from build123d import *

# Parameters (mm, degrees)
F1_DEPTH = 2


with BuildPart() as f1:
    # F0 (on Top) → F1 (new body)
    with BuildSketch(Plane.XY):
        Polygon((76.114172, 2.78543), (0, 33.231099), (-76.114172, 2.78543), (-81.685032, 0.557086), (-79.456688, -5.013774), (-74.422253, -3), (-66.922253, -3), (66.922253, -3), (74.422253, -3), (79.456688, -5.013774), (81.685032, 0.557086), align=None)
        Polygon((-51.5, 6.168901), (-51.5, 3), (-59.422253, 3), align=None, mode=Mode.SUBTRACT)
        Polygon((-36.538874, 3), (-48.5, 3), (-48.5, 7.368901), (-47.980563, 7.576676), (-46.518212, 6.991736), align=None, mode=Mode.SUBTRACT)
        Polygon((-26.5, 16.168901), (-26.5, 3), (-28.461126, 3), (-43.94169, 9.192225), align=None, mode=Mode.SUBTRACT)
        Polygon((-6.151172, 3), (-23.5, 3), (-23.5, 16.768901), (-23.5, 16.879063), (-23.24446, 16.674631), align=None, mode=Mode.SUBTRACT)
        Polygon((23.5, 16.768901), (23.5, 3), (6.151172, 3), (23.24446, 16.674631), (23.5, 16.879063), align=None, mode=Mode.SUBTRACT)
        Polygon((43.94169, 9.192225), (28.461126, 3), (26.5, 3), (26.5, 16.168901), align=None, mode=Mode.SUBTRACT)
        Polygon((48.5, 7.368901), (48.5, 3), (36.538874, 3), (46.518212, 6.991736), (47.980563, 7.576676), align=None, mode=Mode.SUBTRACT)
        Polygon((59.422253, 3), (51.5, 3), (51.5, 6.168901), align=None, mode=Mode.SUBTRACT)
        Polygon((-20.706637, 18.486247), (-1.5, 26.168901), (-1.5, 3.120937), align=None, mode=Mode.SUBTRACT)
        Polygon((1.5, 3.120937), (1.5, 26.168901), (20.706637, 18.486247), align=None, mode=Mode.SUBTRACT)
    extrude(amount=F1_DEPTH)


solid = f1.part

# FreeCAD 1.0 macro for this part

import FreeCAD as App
import Part
import Sketcher
Q = App.Units.Quantity

doc = App.newDocument("Part")
body = doc.addObject("PartDesign::Body", "Body")

# Sketch on XY plane
sketch1 = body.newObject("Sketcher::SketchObject", "Sketch")
sketch1.AttachmentSupport = (doc.getObject("XY_Plane"), [""])
sketch1.MapMode = "FlatFace"
sketch1.addGeometry(Part.LineSegment(App.Vector(76.11, 2.79, 0), App.Vector(0, 33.23, 0)), False)
sketch1.addGeometry(Part.LineSegment(App.Vector(0, 33.23, 0), App.Vector(-76.11, 2.79, 0)), False)
sketch1.addGeometry(Part.LineSegment(App.Vector(-76.11, 2.79, 0), App.Vector(-81.69, 0.56, 0)), False)
sketch1.addGeometry(Part.LineSegment(App.Vector(-81.69, 0.56, 0), App.Vector(-79.46, -5.01, 0)), False)
sketch1.addGeometry(Part.LineSegment(App.Vector(-79.46, -5.01, 0), App.Vector(-74.42, -3, 0)), False)
sketch1.addGeometry(Part.LineSegment(App.Vector(-74.42, -3, 0), App.Vector(74.42, -3, 0)), False)
sketch1.addGeometry(Part.LineSegment(App.Vector(74.42, -3, 0), App.Vector(79.46, -5.01, 0)), False)
sketch1.addGeometry(Part.LineSegment(App.Vector(79.46, -5.01, 0), App.Vector(81.69, 0.56, 0)), False)
sketch1.addGeometry(Part.LineSegment(App.Vector(81.69, 0.56, 0), App.Vector(76.11, 2.79, 0)), False)
sketch1.addGeometry(Part.LineSegment(App.Vector(-59.42, 3, 0), App.Vector(-51.5, 6.17, 0)), False)
sketch1.addGeometry(Part.LineSegment(App.Vector(-51.5, 6.17, 0), App.Vector(-51.5, 3, 0)), False)
sketch1.addGeometry(Part.LineSegment(App.Vector(-51.5, 3, 0), App.Vector(-59.42, 3, 0)), False)
sketch1.addGeometry(Part.LineSegment(App.Vector(-46.52, 6.99, 0), App.Vector(-36.54, 3, 0)), False)
sketch1.addGeometry(Part.LineSegment(App.Vector(-36.54, 3, 0), App.Vector(-48.5, 3, 0)), False)
sketch1.addGeometry(Part.LineSegment(App.Vector(-48.5, 3, 0), App.Vector(-48.5, 7.37, 0)), False)
sketch1.addGeometry(Part.LineSegment(App.Vector(-48.5, 7.37, 0), App.Vector(-47.98, 7.58, 0)), False)
sketch1.addGeometry(Part.LineSegment(App.Vector(-47.98, 7.58, 0), App.Vector(-46.52, 6.99, 0)), False)
sketch1.addGeometry(Part.LineSegment(App.Vector(-43.94, 9.19, 0), App.Vector(-26.5, 16.17, 0)), False)
sketch1.addGeometry(Part.LineSegment(App.Vector(-26.5, 16.17, 0), App.Vector(-26.5, 3, 0)), False)
sketch1.addGeometry(Part.LineSegment(App.Vector(-26.5, 3, 0), App.Vector(-28.46, 3, 0)), False)
sketch1.addGeometry(Part.LineSegment(App.Vector(-28.46, 3, 0), App.Vector(-43.94, 9.19, 0)), False)
sketch1.addGeometry(Part.LineSegment(App.Vector(-23.24, 16.67, 0), App.Vector(-6.15, 3, 0)), False)
sketch1.addGeometry(Part.LineSegment(App.Vector(-6.15, 3, 0), App.Vector(-23.5, 3, 0)), False)
sketch1.addGeometry(Part.LineSegment(App.Vector(-23.5, 3, 0), App.Vector(-23.5, 16.88, 0)), False)
sketch1.addGeometry(Part.LineSegment(App.Vector(-23.5, 16.88, 0), App.Vector(-23.24, 16.67, 0)), False)
sketch1.addGeometry(Part.LineSegment(App.Vector(47.98, 7.58, 0), App.Vector(48.5, 7.37, 0)), False)
sketch1.addGeometry(Part.LineSegment(App.Vector(48.5, 7.37, 0), App.Vector(48.5, 3, 0)), False)
sketch1.addGeometry(Part.LineSegment(App.Vector(48.5, 3, 0), App.Vector(36.54, 3, 0)), False)
sketch1.addGeometry(Part.LineSegment(App.Vector(36.54, 3, 0), App.Vector(46.52, 6.99, 0)), False)
sketch1.addGeometry(Part.LineSegment(App.Vector(46.52, 6.99, 0), App.Vector(47.98, 7.58, 0)), False)
sketch1.addGeometry(Part.LineSegment(App.Vector(51.5, 6.17, 0), App.Vector(59.42, 3, 0)), False)
sketch1.addGeometry(Part.LineSegment(App.Vector(59.42, 3, 0), App.Vector(51.5, 3, 0)), False)
sketch1.addGeometry(Part.LineSegment(App.Vector(51.5, 3, 0), App.Vector(51.5, 6.17, 0)), False)
sketch1.addGeometry(Part.LineSegment(App.Vector(23.5, 16.88, 0), App.Vector(23.5, 3, 0)), False)
sketch1.addGeometry(Part.LineSegment(App.Vector(23.5, 3, 0), App.Vector(6.15, 3, 0)), False)
sketch1.addGeometry(Part.LineSegment(App.Vector(6.15, 3, 0), App.Vector(23.24, 16.67, 0)), False)
sketch1.addGeometry(Part.LineSegment(App.Vector(23.24, 16.67, 0), App.Vector(23.5, 16.88, 0)), False)
sketch1.addGeometry(Part.LineSegment(App.Vector(26.5, 16.17, 0), App.Vector(43.94, 9.19, 0)), False)
sketch1.addGeometry(Part.LineSegment(App.Vector(43.94, 9.19, 0), App.Vector(28.46, 3, 0)), False)
sketch1.addGeometry(Part.LineSegment(App.Vector(28.46, 3, 0), App.Vector(26.5, 3, 0)), False)
sketch1.addGeometry(Part.LineSegment(App.Vector(26.5, 3, 0), App.Vector(26.5, 16.17, 0)), False)
sketch1.addGeometry(Part.LineSegment(App.Vector(-1.5, 3.12, 0), App.Vector(-20.71, 18.49, 0)), False)
sketch1.addGeometry(Part.LineSegment(App.Vector(-20.71, 18.49, 0), App.Vector(-1.5, 26.17, 0)), False)
sketch1.addGeometry(Part.LineSegment(App.Vector(-1.5, 26.17, 0), App.Vector(-1.5, 3.12, 0)), False)
sketch1.addGeometry(Part.LineSegment(App.Vector(20.71, 18.49, 0), App.Vector(1.5, 3.12, 0)), False)
sketch1.addGeometry(Part.LineSegment(App.Vector(1.5, 3.12, 0), App.Vector(1.5, 26.17, 0)), False)
sketch1.addGeometry(Part.LineSegment(App.Vector(1.5, 26.17, 0), App.Vector(20.71, 18.49, 0)), False)
sketch1.addConstraint(Sketcher.Constraint("Coincident", 0, 2, 1, 1))
sketch1.addConstraint(Sketcher.Constraint("Coincident", 1, 2, 2, 1))
sketch1.addConstraint(Sketcher.Constraint("Coincident", 2, 2, 3, 1))
sketch1.addConstraint(Sketcher.Constraint("Coincident", 3, 2, 4, 1))
sketch1.addConstraint(Sketcher.Constraint("Coincident", 4, 2, 5, 1))
sketch1.addConstraint(Sketcher.Constraint("Coincident", 5, 2, 6, 1))
sketch1.addConstraint(Sketcher.Constraint("Coincident", 6, 2, 7, 1))
sketch1.addConstraint(Sketcher.Constraint("Coincident", 7, 2, 8, 1))
sketch1.addConstraint(Sketcher.Constraint("Coincident", 8, 2, 0, 1))
sketch1.addConstraint(Sketcher.Constraint("Coincident", 9, 2, 10, 1))
sketch1.addConstraint(Sketcher.Constraint("Coincident", 10, 2, 11, 1))
sketch1.addConstraint(Sketcher.Constraint("Coincident", 11, 2, 9, 1))
sketch1.addConstraint(Sketcher.Constraint("Coincident", 12, 2, 13, 1))
sketch1.addConstraint(Sketcher.Constraint("Coincident", 13, 2, 14, 1))
sketch1.addConstraint(Sketcher.Constraint("Coincident", 14, 2, 15, 1))
sketch1.addConstraint(Sketcher.Constraint("Coincident", 15, 2, 16, 1))
sketch1.addConstraint(Sketcher.Constraint("Coincident", 16, 2, 12, 1))
sketch1.addConstraint(Sketcher.Constraint("Coincident", 17, 2, 18, 1))
sketch1.addConstraint(Sketcher.Constraint("Coincident", 18, 2, 19, 1))
sketch1.addConstraint(Sketcher.Constraint("Coincident", 19, 2, 20, 1))
sketch1.addConstraint(Sketcher.Constraint("Coincident", 20, 2, 17, 1))
sketch1.addConstraint(Sketcher.Constraint("Coincident", 21, 2, 22, 1))
sketch1.addConstraint(Sketcher.Constraint("Coincident", 22, 2, 23, 1))
sketch1.addConstraint(Sketcher.Constraint("Coincident", 23, 2, 24, 1))
sketch1.addConstraint(Sketcher.Constraint("Coincident", 24, 2, 21, 1))
sketch1.addConstraint(Sketcher.Constraint("Coincident", 25, 2, 26, 1))
sketch1.addConstraint(Sketcher.Constraint("Coincident", 26, 2, 27, 1))
sketch1.addConstraint(Sketcher.Constraint("Coincident", 27, 2, 28, 1))
sketch1.addConstraint(Sketcher.Constraint("Coincident", 28, 2, 29, 1))
sketch1.addConstraint(Sketcher.Constraint("Coincident", 29, 2, 25, 1))
sketch1.addConstraint(Sketcher.Constraint("Coincident", 30, 2, 31, 1))
sketch1.addConstraint(Sketcher.Constraint("Coincident", 31, 2, 32, 1))
sketch1.addConstraint(Sketcher.Constraint("Coincident", 32, 2, 30, 1))
sketch1.addConstraint(Sketcher.Constraint("Coincident", 33, 2, 34, 1))
sketch1.addConstraint(Sketcher.Constraint("Coincident", 34, 2, 35, 1))
sketch1.addConstraint(Sketcher.Constraint("Coincident", 35, 2, 36, 1))
sketch1.addConstraint(Sketcher.Constraint("Coincident", 36, 2, 33, 1))
sketch1.addConstraint(Sketcher.Constraint("Coincident", 37, 2, 38, 1))
sketch1.addConstraint(Sketcher.Constraint("Coincident", 38, 2, 39, 1))
sketch1.addConstraint(Sketcher.Constraint("Coincident", 39, 2, 40, 1))
sketch1.addConstraint(Sketcher.Constraint("Coincident", 40, 2, 37, 1))
sketch1.addConstraint(Sketcher.Constraint("Coincident", 41, 2, 42, 1))
sketch1.addConstraint(Sketcher.Constraint("Coincident", 42, 2, 43, 1))
sketch1.addConstraint(Sketcher.Constraint("Coincident", 43, 2, 41, 1))
sketch1.addConstraint(Sketcher.Constraint("Coincident", 44, 2, 45, 1))
sketch1.addConstraint(Sketcher.Constraint("Coincident", 45, 2, 46, 1))
sketch1.addConstraint(Sketcher.Constraint("Coincident", 46, 2, 44, 1))
sketch1.addConstraint(Sketcher.Constraint("Horizontal", 5))
sketch1.addConstraint(Sketcher.Constraint("Vertical", 10))
sketch1.addConstraint(Sketcher.Constraint("Horizontal", 11))
sketch1.addConstraint(Sketcher.Constraint("Horizontal", 13))
sketch1.addConstraint(Sketcher.Constraint("Vertical", 14))
sketch1.addConstraint(Sketcher.Constraint("Vertical", 18))
sketch1.addConstraint(Sketcher.Constraint("Horizontal", 19))
sketch1.addConstraint(Sketcher.Constraint("Horizontal", 22))
sketch1.addConstraint(Sketcher.Constraint("Vertical", 23))
sketch1.addConstraint(Sketcher.Constraint("Vertical", 26))
sketch1.addConstraint(Sketcher.Constraint("Horizontal", 27))
sketch1.addConstraint(Sketcher.Constraint("Horizontal", 31))
sketch1.addConstraint(Sketcher.Constraint("Vertical", 32))
sketch1.addConstraint(Sketcher.Constraint("Vertical", 33))
sketch1.addConstraint(Sketcher.Constraint("Horizontal", 34))
sketch1.addConstraint(Sketcher.Constraint("Horizontal", 39))
sketch1.addConstraint(Sketcher.Constraint("Vertical", 40))
sketch1.addConstraint(Sketcher.Constraint("Vertical", 43))
sketch1.addConstraint(Sketcher.Constraint("Vertical", 45))
sketch1.addConstraint(Sketcher.Constraint("Symmetric", 3, 2, 6, 2, -2))
sketch1.addConstraint(Sketcher.Constraint("Symmetric", 2, 2, 7, 2, -2))
sketch1.addConstraint(Sketcher.Constraint("Symmetric", 1, 2, 8, 2, -2))
sketch1.addConstraint(Sketcher.Constraint("Symmetric", 14, 2, 25, 2, -2))
sketch1.addConstraint(Sketcher.Constraint("Symmetric", 12, 2, 27, 2, -2))
sketch1.addConstraint(Sketcher.Constraint("Symmetric", 16, 2, 28, 2, -2))
sketch1.addConstraint(Sketcher.Constraint("Symmetric", 15, 2, 29, 2, -2))
sketch1.addConstraint(Sketcher.Constraint("Symmetric", 11, 2, 30, 2, -2))
sketch1.addConstraint(Sketcher.Constraint("Symmetric", 9, 2, 32, 2, -2))
sketch1.addConstraint(Sketcher.Constraint("Symmetric", 22, 2, 33, 2, -2))
sketch1.addConstraint(Sketcher.Constraint("Symmetric", 24, 2, 35, 2, -2))
sketch1.addConstraint(Sketcher.Constraint("Symmetric", 20, 2, 37, 2, -2))
sketch1.addConstraint(Sketcher.Constraint("Symmetric", 19, 2, 38, 2, -2))
sketch1.addConstraint(Sketcher.Constraint("Symmetric", 17, 2, 40, 2, -2))
sketch1.addConstraint(Sketcher.Constraint("Symmetric", 43, 2, 44, 2, -2))
sketch1.addConstraint(Sketcher.Constraint("Symmetric", 41, 2, 46, 2, -2))
sketch1.addConstraint(Sketcher.Constraint("PointOnObject", 0, 2, -2))
sketch1.addConstraint(Sketcher.Constraint("Parallel", 1, 2))
sketch1.addConstraint(Sketcher.Constraint("Perpendicular", 2, 3))
sketch1.addConstraint(Sketcher.Constraint("Perpendicular", 3, 4))
sketch1.addConstraint(Sketcher.Constraint("Parallel", 0, 6))
sketch1.addConstraint(Sketcher.Constraint("Parallel", 4, 9))
sketch1.addConstraint(Sketcher.Constraint("Parallel", 8, 12))
sketch1.addConstraint(Sketcher.Constraint("Parallel", 9, 15))
sketch1.addConstraint(Sketcher.Constraint("Parallel", 12, 16))
sketch1.addConstraint(Sketcher.Constraint("Parallel", 15, 17))
sketch1.addConstraint(Sketcher.Constraint("Parallel", 16, 20))
sketch1.addConstraint(Sketcher.Constraint("Parallel", 21, 24))
sketch1.addConstraint(Sketcher.Constraint("Parallel", 35, 36))
sketch1.addConstraint(Sketcher.Constraint("Parallel", 24, 41))
sketch1.addConstraint(Sketcher.Constraint("Parallel", 38, 42))
sketch1.addConstraint(Sketcher.Constraint("Parallel", 36, 44))
sketch1.addConstraint(Sketcher.Constraint("Parallel", 37, 46))
sketch1.addConstraint(Sketcher.Constraint("Horizontal", 11, 2, 12, 2))
sketch1.addConstraint(Sketcher.Constraint("Horizontal", 13, 2, 18, 2))
sketch1.addConstraint(Sketcher.Constraint("Horizontal", 19, 2, 21, 2))
sketch1.addConstraint(Sketcher.Constraint("Equal", 2, 3))
sketch1.addConstraint(Sketcher.Constraint("Distance", 2, Q("6 mm")))
sketch1.addConstraint(Sketcher.Constraint("DistanceY", 4, 2, -1, 1, Q("3 mm")))
sketch1.addConstraint(Sketcher.Constraint("DistanceY", -1, 1, 10, 2, Q("3 mm")))
sketch1.addConstraint(Sketcher.Constraint("DistanceX", 4, 2, 11, 2, Q("15 mm")))
sketch1.addConstraint(Sketcher.Constraint("DistanceX", 10, 2, 13, 2, Q("3 mm")))
sketch1.addConstraint(Sketcher.Constraint("DistanceX", 14, 2, 17, 2, Q("22 mm")))
sketch1.addConstraint(Sketcher.Constraint("DistanceX", 18, 2, 22, 2, Q("3 mm")))
sketch1.addConstraint(Sketcher.Constraint("DistanceX", 23, 2, 42, 2, Q("22 mm")))
sketch1.addConstraint(Sketcher.Constraint("DistanceX", 43, 2, 44, 2, Q("3 mm")))
sketch1.addConstraint(Sketcher.Constraint("DistanceY", 9, 2, 14, 2, Q("1.2 mm")))
sketch1.addConstraint(Sketcher.Constraint("DistanceY", 14, 2, 17, 2, Q("8.8 mm")))
sketch1.addConstraint(Sketcher.Constraint("Distance", 16, Q("1.575 mm")))
sketch1.addConstraint(Sketcher.Constraint("DistanceY", 10, 2, 10, 1, Q("3.168901 mm")))
sketch1.addConstraint(Sketcher.Constraint("DistanceX", 22, 2, 22, 1, Q("17.348828 mm")))
sketch1.addConstraint(Sketcher.Constraint("DistanceY", -1, 1, 0, 2, Q("33.231099 mm")))
sketch1.addConstraint(Sketcher.Constraint("DistanceY", -1, 1, 42, 2, Q("26.168901 mm")))
sketch1.addConstraint(Sketcher.Constraint("Distance", 15, Q("0.559451 mm")))
sketch1.addConstraint(Sketcher.Constraint("Distance", 21, Q("21.89009 mm")))
sketch1.addConstraint(Sketcher.Constraint("Distance", 24, Q("0.327251 mm")))
sketch1.addConstraint(Sketcher.Constraint("Distance", 42, Q("20.686181 mm")))
sketch1.addConstraint(Sketcher.Constraint("DistanceX", 19, 2, 19, 1, Q("1.961126 mm")))
sketch1.addConstraint(Sketcher.Constraint("DistanceX", 1, 2, -1, 1, Q("76.114172 mm")))
pad1 = body.newObject("PartDesign::Pad", "Pad")
pad1.Profile = sketch1
pad1.Length = 2

doc.recompute()
